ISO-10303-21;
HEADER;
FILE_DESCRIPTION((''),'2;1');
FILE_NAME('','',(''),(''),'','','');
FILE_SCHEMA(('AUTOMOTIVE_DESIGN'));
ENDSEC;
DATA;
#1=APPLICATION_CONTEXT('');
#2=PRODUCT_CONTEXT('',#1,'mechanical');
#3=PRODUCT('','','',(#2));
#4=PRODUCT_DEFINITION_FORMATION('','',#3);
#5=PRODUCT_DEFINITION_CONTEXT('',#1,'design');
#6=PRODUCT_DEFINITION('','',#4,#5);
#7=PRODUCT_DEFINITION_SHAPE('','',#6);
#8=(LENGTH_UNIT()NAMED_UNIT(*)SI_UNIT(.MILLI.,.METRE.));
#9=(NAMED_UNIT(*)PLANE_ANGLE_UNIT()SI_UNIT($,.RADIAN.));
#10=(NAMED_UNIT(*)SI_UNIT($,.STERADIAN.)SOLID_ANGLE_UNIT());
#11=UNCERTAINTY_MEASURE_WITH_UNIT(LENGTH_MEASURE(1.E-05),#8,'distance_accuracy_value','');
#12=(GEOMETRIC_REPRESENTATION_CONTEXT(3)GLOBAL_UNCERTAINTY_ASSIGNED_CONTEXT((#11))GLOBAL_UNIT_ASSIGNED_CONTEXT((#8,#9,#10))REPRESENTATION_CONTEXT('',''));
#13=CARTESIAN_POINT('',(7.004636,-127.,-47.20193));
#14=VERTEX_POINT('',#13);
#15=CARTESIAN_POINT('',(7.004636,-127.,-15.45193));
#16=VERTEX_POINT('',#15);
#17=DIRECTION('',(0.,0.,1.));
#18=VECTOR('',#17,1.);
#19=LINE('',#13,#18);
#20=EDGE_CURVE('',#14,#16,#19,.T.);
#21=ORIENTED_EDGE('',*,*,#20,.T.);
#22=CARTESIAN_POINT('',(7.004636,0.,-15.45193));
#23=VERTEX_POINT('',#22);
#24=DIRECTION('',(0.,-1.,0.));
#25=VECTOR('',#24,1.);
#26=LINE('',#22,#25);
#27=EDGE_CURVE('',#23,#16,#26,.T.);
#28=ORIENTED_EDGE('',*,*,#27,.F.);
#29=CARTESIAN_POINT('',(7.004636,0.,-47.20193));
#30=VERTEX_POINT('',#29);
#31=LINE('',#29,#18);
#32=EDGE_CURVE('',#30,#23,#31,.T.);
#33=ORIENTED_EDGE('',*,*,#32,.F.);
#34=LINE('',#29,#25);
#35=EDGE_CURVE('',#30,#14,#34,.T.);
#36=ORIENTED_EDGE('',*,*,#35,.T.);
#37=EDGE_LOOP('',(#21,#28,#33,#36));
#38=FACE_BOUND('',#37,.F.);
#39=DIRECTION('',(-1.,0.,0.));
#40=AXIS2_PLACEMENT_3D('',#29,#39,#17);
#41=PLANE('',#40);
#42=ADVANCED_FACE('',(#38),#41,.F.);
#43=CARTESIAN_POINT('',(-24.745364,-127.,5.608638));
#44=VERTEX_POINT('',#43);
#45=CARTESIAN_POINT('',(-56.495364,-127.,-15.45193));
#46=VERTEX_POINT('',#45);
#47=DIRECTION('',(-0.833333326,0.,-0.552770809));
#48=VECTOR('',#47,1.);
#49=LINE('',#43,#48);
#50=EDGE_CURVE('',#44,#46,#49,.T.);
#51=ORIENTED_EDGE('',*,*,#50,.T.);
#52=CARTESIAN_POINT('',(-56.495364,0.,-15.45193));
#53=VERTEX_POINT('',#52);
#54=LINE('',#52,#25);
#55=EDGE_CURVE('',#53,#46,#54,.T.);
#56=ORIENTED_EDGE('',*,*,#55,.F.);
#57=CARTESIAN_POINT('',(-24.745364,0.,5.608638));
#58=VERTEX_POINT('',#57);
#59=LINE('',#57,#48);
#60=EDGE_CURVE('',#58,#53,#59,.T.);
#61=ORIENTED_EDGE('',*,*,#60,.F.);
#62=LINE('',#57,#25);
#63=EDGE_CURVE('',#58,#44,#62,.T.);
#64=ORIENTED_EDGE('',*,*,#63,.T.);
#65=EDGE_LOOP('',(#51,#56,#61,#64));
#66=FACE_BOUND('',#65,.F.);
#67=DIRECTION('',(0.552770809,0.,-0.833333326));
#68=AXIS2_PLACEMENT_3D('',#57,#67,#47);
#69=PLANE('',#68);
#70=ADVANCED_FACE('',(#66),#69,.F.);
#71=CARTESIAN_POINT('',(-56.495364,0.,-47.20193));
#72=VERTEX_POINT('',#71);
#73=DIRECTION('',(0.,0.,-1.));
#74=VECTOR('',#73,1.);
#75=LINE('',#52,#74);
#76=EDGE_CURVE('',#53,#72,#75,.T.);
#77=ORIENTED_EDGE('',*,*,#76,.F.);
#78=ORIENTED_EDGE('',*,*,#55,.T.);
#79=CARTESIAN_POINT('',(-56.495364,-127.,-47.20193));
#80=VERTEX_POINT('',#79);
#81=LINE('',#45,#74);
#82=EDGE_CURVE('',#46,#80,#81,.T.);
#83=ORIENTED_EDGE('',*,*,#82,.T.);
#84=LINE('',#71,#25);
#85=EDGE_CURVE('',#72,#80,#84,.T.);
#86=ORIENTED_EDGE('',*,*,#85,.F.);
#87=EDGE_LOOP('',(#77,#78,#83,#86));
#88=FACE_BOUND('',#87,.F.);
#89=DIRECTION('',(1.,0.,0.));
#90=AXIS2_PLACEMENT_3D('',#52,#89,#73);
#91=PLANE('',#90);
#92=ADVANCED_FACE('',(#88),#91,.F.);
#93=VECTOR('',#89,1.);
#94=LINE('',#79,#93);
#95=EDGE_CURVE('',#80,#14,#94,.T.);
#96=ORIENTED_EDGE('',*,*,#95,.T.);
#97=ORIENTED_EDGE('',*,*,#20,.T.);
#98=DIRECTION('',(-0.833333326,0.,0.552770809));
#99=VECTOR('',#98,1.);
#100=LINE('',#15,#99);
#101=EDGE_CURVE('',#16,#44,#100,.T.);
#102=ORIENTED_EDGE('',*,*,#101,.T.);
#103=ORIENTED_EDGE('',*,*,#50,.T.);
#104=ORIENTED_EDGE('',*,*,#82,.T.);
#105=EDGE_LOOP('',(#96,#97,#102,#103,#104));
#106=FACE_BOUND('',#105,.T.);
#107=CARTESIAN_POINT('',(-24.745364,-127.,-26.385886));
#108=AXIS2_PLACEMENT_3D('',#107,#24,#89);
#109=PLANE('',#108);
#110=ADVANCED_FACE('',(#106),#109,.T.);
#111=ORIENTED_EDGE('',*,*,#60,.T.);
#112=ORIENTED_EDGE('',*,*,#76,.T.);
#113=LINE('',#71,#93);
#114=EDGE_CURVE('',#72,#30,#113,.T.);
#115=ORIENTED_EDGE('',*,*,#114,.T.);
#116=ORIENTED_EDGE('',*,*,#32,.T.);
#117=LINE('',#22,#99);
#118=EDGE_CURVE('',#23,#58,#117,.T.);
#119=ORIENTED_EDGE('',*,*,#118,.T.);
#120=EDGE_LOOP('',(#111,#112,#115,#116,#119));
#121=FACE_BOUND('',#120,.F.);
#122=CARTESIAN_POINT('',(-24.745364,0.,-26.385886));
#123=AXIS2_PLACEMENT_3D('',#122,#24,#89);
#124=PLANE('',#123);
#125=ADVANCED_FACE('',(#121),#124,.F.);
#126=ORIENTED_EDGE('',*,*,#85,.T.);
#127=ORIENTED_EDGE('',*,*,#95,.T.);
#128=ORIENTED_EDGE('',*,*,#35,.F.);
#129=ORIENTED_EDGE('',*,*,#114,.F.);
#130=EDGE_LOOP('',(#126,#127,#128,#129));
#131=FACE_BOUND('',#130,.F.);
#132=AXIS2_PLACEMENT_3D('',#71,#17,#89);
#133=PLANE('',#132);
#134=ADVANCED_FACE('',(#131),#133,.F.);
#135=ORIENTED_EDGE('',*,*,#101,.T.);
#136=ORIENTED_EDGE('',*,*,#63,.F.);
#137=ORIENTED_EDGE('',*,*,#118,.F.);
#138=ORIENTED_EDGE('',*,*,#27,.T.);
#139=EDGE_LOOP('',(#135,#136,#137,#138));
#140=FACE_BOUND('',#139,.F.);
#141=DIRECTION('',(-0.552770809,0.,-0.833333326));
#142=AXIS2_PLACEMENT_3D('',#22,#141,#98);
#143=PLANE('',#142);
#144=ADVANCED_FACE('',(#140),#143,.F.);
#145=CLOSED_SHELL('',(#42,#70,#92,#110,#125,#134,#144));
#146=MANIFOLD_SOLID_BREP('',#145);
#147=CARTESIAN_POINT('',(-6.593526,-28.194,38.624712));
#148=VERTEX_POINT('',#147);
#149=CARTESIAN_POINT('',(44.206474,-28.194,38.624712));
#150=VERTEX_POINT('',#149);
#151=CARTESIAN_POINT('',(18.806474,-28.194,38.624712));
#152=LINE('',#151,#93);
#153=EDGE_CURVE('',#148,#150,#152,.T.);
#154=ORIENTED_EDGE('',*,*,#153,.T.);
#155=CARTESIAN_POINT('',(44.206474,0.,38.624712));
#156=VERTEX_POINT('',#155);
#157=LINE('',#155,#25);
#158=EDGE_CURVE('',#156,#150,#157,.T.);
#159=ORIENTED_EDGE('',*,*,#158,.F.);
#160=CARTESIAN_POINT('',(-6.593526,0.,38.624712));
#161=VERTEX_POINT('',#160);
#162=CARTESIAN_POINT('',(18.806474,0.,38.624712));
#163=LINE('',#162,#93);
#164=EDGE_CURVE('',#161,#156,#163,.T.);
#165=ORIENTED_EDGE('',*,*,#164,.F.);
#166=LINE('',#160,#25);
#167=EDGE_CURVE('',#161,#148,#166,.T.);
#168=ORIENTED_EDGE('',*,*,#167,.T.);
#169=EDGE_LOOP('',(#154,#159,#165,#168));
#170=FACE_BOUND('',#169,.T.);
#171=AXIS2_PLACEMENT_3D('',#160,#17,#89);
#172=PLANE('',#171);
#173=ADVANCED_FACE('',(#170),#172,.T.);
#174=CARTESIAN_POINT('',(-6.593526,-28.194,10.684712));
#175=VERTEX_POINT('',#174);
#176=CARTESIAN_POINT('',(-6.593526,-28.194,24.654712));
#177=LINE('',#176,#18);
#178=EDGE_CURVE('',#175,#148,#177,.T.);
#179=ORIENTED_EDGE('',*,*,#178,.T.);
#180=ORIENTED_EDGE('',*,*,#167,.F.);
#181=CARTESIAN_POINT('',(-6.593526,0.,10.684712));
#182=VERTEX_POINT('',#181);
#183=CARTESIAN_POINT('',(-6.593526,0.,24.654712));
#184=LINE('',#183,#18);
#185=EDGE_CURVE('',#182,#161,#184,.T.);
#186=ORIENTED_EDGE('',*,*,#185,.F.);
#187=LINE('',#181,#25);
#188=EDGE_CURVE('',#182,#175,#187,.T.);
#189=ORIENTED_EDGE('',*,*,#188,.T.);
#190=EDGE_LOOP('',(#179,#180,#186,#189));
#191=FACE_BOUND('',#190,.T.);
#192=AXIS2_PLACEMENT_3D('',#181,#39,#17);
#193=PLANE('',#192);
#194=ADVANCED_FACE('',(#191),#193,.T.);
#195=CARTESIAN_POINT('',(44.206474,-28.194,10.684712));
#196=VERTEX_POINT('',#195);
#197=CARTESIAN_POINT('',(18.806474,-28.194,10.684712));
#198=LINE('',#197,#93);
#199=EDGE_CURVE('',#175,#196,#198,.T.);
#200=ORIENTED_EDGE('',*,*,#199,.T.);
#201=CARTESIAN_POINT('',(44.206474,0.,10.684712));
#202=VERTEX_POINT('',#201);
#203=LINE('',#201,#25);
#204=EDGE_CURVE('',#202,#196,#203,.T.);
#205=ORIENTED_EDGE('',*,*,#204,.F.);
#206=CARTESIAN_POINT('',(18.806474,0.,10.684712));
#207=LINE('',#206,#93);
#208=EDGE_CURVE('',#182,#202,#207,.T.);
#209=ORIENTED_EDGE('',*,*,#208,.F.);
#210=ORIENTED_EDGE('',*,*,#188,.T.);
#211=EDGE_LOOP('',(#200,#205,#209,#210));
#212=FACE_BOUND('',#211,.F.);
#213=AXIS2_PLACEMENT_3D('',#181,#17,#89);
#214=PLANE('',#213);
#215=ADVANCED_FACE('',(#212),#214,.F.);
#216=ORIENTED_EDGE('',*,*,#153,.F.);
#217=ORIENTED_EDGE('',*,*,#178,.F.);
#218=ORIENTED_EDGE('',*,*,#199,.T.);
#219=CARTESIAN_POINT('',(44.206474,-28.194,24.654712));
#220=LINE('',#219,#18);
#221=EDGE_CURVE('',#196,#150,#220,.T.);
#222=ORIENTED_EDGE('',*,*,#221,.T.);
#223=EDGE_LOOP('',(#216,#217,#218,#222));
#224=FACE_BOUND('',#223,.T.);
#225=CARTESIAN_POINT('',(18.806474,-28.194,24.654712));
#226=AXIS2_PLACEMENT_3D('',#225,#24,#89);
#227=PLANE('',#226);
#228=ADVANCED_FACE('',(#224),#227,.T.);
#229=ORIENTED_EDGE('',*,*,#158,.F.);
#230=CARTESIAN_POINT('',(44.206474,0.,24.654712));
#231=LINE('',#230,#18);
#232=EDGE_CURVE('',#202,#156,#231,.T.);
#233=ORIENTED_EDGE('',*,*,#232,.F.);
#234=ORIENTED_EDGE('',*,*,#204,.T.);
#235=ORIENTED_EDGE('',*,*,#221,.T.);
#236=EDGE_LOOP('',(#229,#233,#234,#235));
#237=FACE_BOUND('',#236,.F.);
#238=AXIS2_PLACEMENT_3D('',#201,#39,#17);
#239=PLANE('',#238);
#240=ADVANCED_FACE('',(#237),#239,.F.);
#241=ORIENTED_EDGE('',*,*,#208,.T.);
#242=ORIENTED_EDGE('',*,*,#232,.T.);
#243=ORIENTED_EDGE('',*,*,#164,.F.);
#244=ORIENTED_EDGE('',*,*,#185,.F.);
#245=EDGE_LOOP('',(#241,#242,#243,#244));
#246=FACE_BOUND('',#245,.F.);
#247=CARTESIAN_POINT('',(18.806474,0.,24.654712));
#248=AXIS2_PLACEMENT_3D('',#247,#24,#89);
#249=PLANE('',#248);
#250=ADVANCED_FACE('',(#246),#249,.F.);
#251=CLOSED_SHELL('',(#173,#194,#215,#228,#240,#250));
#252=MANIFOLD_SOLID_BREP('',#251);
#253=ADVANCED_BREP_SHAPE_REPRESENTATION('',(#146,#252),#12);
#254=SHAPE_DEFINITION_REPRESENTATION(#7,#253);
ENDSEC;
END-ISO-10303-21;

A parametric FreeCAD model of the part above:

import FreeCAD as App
import Part
import Sketcher
from FreeCAD import Vector
Q = App.Units.Quantity


def add_polygon(sketch, points):
    """Adds a closed chain of lines whose ends are joined by coincident constraints."""
    first, n = sketch.GeometryCount, len(points)
    for a, b in zip(points, points[1:] + points[:1]):
        sketch.addGeometry(Part.LineSegment(App.Vector(*a, 0), App.Vector(*b, 0)), False)
    for i in range(n):
        sketch.addConstraint(Sketcher.Constraint("Coincident", first + i, 2, first + (i + 1) % n, 1))

doc = App.newDocument("Part")
body = doc.addObject("PartDesign::Body", "Body")

# Sketch on XZ plane
sketch1 = body.newObject("Sketcher::SketchObject", "Sketch")
sketch1.AttachmentSupport = (doc.getObject("XZ_Plane"), [""])
sketch1.MapMode = "FlatFace"
add_polygon(sketch1, [(-6.593526, 38.624712), (-6.593526, 10.684712), (44.206474, 10.684712), (44.206474, 38.624712)])  # lines 0-3
sketch1.addConstraint([
    Sketcher.Constraint("Vertical", 0),
    Sketcher.Constraint("Horizontal", 1),
    Sketcher.Constraint("Vertical", 2),
    Sketcher.Constraint("Horizontal", 3),
    Sketcher.Constraint("DistanceX", 1, 1, 1, 2, Q("2 in")),
    Sketcher.Constraint("DistanceY", 0, 2, 0, 1, Q("1.1 in")),
    Sketcher.Constraint("DistanceY", -1, 1, 0, 2, Q("10.684712 mm")),
    Sketcher.Constraint("DistanceX", 0, 2, -1, 1, Q("6.593526 mm")),
])
pad1 = body.newObject("PartDesign::Pad", "Pad")
pad1.Profile = sketch1
pad1.Length = Q("1.11 in")
body2 = doc.addObject("PartDesign::Body", "Body001")

# Sketch on XZ plane
sketch2 = body2.newObject("Sketcher::SketchObject", "Sketch001")
sketch2.AttachmentSupport = (doc.getObject("XZ_Plane001"), [""])
sketch2.MapMode = "FlatFace"
add_polygon(sketch2, [(-56.495364, -15.45193), (-56.495364, -47.20193), (7.004636, -47.20193), (7.004636, -15.45193), (-24.745364, 5.608638)])  # lines 0-4
sketch2.addConstraint([
    Sketcher.Constraint("Vertical", 0),
    Sketcher.Constraint("Horizontal", 1),
    Sketcher.Constraint("Vertical", 2),
    Sketcher.Constraint("Horizontal", 2, 2, 4, 2),
    Sketcher.Constraint("Equal", 3, 4),
    Sketcher.Constraint("DistanceX", 1, 1, 1, 2, Q("2.5 in")),
    Sketcher.Constraint("Distance", 3, Q("1.5 in")),
    Sketcher.Constraint("DistanceY", 0, 2, 0, 1, Q("1.25 in")),
    Sketcher.Constraint("DistanceY", 0, 2, -1, 1, Q("47.20193 mm")),
    Sketcher.Constraint("DistanceX", 0, 2, -1, 1, Q("56.495364 mm")),
])
pad2 = body2.newObject("PartDesign::Pad", "Pad001")
pad2.Profile = sketch2
pad2.Length = Q("5 in")

doc.recompute()
